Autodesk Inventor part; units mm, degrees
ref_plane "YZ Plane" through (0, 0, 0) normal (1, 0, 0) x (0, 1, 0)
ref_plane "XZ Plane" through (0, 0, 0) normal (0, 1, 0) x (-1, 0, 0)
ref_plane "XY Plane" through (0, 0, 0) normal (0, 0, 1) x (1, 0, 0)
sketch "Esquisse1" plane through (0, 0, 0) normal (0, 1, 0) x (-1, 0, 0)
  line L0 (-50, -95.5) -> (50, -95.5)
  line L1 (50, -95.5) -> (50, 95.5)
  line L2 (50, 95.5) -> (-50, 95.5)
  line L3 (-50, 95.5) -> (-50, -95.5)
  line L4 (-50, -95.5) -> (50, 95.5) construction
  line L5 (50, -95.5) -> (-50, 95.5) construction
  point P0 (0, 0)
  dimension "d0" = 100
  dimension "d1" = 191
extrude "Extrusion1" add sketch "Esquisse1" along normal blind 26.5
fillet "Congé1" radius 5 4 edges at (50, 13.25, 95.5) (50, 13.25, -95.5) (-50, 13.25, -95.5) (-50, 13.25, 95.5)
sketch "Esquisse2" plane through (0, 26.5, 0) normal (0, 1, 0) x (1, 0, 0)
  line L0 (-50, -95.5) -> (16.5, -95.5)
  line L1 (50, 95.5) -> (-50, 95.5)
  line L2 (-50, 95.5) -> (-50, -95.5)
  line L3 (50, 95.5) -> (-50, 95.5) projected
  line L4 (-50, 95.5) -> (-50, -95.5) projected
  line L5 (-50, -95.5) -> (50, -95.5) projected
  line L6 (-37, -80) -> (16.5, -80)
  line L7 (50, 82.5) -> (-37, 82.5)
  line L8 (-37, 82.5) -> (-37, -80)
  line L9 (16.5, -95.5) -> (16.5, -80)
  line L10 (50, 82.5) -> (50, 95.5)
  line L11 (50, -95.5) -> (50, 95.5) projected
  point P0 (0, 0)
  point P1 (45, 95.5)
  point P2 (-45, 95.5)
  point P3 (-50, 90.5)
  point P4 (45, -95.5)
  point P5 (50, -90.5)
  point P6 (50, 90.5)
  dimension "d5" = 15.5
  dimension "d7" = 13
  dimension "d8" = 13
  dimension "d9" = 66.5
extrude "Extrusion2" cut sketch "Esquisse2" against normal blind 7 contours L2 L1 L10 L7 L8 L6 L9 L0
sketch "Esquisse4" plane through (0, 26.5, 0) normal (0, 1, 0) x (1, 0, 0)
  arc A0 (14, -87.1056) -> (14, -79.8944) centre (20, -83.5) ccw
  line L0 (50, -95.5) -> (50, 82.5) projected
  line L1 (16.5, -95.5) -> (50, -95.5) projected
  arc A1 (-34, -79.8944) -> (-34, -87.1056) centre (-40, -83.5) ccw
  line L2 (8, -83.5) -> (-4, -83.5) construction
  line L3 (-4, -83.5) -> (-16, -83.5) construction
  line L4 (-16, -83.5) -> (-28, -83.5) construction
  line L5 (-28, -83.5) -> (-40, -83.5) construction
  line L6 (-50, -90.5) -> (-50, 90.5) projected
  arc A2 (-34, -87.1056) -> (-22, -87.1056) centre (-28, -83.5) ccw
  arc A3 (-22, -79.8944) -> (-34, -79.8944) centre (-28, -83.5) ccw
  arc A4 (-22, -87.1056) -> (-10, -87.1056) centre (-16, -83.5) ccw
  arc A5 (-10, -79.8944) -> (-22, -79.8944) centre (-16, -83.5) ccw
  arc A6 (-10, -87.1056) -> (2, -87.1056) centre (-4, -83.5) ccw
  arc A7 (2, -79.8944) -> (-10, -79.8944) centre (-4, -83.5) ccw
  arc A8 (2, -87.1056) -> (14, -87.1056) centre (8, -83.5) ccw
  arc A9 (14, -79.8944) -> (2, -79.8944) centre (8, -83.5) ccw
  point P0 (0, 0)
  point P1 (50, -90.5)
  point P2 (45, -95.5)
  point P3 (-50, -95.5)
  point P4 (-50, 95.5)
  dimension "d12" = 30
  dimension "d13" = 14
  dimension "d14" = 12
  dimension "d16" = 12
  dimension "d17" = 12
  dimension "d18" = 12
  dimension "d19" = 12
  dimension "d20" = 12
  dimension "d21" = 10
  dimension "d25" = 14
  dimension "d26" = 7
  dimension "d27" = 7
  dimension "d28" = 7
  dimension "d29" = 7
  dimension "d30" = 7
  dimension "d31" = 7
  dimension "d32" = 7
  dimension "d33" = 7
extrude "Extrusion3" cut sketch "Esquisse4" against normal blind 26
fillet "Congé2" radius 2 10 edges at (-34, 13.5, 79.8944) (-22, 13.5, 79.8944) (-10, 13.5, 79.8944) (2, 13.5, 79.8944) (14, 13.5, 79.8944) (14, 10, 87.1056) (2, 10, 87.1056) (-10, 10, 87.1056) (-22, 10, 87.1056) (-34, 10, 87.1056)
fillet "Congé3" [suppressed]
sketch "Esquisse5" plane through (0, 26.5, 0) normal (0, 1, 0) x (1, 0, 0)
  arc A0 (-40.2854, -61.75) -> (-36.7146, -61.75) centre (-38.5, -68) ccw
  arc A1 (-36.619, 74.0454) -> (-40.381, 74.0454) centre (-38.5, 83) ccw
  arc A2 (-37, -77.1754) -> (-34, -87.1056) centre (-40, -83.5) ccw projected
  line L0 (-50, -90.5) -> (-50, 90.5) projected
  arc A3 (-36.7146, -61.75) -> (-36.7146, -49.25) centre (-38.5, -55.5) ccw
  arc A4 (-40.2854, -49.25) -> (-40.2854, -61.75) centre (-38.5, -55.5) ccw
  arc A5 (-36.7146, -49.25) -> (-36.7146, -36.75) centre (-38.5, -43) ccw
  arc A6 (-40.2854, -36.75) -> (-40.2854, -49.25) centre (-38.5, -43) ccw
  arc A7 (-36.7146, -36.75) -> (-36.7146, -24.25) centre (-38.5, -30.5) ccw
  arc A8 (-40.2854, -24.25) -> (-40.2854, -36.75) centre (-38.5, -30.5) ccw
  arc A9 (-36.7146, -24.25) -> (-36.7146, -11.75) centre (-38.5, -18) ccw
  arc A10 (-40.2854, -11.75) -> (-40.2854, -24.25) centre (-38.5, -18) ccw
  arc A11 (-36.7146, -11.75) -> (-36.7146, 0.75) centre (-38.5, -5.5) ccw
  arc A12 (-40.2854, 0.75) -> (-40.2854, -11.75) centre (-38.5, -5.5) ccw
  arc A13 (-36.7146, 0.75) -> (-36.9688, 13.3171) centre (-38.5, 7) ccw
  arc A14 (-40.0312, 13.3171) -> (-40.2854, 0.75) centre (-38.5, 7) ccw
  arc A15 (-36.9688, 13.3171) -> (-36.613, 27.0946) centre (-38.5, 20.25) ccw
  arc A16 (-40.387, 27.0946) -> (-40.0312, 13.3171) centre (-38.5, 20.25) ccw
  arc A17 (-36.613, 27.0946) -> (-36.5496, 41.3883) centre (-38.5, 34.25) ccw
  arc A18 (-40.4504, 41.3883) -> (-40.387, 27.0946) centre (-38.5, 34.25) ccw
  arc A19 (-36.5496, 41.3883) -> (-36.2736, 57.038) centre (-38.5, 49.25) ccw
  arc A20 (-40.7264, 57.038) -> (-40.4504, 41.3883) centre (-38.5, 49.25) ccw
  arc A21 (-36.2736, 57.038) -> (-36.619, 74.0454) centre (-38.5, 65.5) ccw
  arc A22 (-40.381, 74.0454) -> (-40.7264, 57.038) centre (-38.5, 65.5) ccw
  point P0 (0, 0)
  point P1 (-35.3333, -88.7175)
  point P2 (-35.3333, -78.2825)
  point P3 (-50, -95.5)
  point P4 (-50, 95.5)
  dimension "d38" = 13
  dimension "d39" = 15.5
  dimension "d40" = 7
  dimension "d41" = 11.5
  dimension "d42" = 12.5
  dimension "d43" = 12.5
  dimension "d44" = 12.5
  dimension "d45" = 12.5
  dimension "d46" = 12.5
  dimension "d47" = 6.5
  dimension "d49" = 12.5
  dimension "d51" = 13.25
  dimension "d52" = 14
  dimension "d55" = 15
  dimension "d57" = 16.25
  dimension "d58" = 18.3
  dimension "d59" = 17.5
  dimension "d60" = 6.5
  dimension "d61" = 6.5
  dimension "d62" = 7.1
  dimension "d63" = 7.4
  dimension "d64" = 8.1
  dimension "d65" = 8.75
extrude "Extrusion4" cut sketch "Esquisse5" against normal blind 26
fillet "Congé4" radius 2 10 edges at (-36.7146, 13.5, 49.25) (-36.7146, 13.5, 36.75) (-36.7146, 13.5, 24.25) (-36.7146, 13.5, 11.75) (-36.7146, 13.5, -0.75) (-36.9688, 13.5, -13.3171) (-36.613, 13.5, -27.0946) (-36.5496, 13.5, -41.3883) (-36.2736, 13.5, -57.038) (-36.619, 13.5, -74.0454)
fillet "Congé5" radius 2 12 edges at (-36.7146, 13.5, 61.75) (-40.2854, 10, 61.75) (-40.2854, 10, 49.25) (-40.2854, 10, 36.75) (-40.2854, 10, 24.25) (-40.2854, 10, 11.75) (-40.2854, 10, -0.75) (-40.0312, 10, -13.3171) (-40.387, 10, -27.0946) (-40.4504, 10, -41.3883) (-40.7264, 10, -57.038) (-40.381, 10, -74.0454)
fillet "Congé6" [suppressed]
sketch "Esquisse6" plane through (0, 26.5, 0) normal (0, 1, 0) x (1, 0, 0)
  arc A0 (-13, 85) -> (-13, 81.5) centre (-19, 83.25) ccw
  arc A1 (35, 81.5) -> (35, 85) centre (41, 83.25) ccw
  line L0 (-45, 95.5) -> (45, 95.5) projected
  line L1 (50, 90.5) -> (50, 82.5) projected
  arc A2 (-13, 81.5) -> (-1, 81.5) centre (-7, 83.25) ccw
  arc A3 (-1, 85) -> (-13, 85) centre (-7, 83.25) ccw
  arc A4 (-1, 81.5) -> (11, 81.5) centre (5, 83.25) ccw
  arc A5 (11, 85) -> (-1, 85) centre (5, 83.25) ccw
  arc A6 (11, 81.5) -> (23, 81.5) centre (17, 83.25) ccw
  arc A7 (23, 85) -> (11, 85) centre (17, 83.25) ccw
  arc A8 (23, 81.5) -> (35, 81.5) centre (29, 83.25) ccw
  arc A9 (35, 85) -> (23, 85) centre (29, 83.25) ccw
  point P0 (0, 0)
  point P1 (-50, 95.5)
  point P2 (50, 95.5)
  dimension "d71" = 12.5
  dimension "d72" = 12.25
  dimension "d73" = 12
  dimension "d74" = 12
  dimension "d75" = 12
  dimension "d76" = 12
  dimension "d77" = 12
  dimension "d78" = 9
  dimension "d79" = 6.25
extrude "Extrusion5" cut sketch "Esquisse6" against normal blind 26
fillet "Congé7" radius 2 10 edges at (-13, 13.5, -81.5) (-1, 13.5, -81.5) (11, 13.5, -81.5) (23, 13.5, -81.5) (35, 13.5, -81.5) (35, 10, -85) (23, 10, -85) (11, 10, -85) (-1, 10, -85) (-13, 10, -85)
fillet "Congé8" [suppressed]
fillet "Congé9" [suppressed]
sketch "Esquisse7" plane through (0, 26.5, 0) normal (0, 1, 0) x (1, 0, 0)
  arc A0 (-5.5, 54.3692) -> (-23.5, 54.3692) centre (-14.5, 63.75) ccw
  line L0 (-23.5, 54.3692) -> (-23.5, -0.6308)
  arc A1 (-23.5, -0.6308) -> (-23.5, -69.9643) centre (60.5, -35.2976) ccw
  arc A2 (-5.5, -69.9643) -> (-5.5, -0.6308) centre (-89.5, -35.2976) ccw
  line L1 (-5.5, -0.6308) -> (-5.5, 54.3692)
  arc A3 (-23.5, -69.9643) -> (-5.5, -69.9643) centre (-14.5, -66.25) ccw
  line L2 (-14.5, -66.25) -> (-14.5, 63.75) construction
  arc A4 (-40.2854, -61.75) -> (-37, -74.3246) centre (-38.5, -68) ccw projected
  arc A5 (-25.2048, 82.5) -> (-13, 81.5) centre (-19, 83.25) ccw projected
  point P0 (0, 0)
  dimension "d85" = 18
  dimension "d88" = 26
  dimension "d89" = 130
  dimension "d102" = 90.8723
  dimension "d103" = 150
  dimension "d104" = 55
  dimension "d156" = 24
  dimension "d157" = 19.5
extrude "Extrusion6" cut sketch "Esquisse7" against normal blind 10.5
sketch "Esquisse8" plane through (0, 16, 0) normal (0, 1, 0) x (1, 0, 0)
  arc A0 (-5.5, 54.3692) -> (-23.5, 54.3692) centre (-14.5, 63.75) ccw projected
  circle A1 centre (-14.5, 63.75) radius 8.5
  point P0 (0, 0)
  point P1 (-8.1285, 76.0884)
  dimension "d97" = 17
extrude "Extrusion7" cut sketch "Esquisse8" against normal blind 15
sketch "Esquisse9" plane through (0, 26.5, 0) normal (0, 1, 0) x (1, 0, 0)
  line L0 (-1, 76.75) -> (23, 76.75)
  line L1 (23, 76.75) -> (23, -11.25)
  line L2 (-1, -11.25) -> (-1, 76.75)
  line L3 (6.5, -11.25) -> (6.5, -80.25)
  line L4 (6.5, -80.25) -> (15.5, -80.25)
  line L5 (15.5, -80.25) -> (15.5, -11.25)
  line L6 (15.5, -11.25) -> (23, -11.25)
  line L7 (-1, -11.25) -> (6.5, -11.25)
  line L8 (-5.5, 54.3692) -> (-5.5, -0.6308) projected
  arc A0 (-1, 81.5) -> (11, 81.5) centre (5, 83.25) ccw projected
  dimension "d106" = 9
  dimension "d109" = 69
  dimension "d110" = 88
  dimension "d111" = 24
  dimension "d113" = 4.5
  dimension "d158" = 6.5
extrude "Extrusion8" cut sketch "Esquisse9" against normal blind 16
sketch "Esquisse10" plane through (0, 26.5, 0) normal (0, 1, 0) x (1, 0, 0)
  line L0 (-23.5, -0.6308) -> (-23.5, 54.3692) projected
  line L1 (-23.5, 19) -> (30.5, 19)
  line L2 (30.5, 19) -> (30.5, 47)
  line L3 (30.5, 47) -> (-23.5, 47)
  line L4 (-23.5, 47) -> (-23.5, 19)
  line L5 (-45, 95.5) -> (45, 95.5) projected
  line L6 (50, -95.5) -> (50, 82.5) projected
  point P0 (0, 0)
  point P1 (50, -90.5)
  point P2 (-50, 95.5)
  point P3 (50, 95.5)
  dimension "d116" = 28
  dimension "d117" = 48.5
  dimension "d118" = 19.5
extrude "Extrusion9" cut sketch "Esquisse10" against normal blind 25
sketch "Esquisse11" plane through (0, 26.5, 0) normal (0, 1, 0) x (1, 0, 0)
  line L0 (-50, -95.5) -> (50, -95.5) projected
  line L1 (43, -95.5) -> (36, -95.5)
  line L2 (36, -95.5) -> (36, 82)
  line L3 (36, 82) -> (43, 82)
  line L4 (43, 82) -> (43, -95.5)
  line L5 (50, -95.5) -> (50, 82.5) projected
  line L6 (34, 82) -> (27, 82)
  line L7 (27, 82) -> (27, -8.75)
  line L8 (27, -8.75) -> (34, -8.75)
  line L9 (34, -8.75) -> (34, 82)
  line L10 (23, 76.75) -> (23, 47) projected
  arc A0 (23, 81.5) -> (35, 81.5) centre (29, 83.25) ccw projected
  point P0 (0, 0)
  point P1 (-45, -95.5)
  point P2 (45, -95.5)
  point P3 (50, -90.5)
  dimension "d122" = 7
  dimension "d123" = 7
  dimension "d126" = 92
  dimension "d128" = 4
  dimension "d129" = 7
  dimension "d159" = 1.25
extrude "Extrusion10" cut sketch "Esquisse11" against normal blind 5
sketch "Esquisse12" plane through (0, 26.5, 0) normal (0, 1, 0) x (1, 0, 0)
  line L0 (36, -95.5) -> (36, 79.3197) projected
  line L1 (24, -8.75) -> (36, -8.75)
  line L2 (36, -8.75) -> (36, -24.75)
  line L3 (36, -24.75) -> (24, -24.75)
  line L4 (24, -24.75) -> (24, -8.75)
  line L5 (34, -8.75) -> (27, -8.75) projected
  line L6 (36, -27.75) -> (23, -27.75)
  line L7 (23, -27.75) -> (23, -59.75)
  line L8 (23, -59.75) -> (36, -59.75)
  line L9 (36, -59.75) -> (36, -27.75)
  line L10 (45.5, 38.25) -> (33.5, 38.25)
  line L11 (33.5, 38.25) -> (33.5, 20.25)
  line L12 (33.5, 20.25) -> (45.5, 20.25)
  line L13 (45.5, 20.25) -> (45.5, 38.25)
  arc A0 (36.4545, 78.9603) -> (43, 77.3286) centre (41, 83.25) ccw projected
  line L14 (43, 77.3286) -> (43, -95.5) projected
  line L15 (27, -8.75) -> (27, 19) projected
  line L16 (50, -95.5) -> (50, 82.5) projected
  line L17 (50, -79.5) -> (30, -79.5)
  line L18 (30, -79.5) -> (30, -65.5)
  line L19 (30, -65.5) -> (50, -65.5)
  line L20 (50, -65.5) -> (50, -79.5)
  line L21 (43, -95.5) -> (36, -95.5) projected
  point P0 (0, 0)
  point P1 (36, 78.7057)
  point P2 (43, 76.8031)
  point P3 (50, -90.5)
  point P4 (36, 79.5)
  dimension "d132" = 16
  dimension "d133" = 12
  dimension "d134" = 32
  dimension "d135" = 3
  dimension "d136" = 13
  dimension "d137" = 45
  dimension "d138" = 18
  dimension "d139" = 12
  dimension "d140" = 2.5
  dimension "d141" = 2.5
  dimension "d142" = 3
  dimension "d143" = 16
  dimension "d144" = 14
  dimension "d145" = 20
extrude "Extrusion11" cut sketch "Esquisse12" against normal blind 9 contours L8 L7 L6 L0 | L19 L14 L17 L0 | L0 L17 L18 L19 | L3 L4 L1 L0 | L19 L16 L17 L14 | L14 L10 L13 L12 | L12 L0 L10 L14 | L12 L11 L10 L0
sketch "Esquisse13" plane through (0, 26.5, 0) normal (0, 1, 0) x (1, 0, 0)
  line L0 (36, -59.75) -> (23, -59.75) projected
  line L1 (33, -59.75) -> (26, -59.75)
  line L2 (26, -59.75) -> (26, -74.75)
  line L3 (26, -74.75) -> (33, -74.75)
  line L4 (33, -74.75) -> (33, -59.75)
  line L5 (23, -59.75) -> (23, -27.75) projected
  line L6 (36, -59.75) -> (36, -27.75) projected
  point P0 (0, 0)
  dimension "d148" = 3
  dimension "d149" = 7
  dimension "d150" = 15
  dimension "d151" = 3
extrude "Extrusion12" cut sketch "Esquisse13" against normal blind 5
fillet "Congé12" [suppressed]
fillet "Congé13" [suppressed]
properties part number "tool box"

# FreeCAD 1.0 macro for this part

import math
import FreeCAD as App
import Part
import Sketcher
from FreeCAD import Vector
Q = App.Units.Quantity


def edges_at(feature, points):
    """Names of the edges that pass closest to the given points."""
    edges = feature.Shape.Edges
    near = lambda p: min(range(len(edges)), key=lambda i: edges[i].distToShape(Part.Vertex(*p))[0])
    return sorted({f"Edge{near(p) + 1}" for p in points})

doc = App.newDocument("Part")
params = doc.addObject("Spreadsheet::Sheet", "Params")
for row, (alias, value) in enumerate([
    ("sketch1_width", "100 mm"),
    ("sketch1_height", "191 mm"),
    ("pad1_length", "26.5 mm"),
    ("fillet_radius", "5 mm"),
    ("sketch2_height", "13 mm"),
    ("sketch2_width", "66.5 mm"),
    ("sketch2_height2", "15.5 mm"),
    ("sketch2_width2", "87 mm"),
    ("sketch2_height3", "191 mm"),
    ("pocket1_length", "7 mm"),
    ("sketch3_radius", "7 mm"),
    ("pocket2_length", "26 mm"),
    ("fillet2_radius", "2 mm"),
    ("sketch4_radius", "6.5 mm"),
    ("sketch4_radius2", "7.1 mm"),
    ("sketch4_radius3", "7.4 mm"),
    ("sketch4_radius4", "8.1 mm"),
    ("sketch4_radius5", "8.75 mm"),
    ("pocket3_length", "26 mm"),
    ("fillet3_radius", "2 mm"),
    ("fillet4_radius", "2 mm"),
    ("sketch5_radius", "6.25 mm"),
    ("pocket4_length", "26 mm"),
    ("fillet5_radius", "2 mm"),
    ("sketch6_radius", "13 mm"),
    ("sketch6_height", "55 mm"),
    ("pocket5_length", "10.5 mm"),
    ("sketch7_diameter", "17 mm"),
    ("pocket6_length", "15 mm"),
    ("sketch8_width", "24 mm"),
    ("sketch8_width2", "9 mm"),
    ("sketch8_height", "88 mm"),
    ("sketch8_height2", "69 mm"),
    ("pocket7_length", "16 mm"),
    ("sketch9_height", "28 mm"),
    ("sketch9_width", "54 mm"),
    ("pocket8_length", "25 mm"),
    ("sketch10_width", "7 mm"),
    ("sketch10_height", "177.5 mm"),
    ("sketch10_height2", "90.75 mm"),
    ("pocket9_length", "5 mm"),
    ("sketch11_width", "13 mm"),
    ("sketch11_width2", "20 mm"),
    ("sketch11_width3", "12 mm"),
    ("sketch11_height", "32 mm"),
    ("sketch11_height2", "14 mm"),
    ("pocket10_length", "9 mm"),
    ("sketch12_width", "7 mm"),
    ("sketch12_height", "15 mm"),
    ("pocket11_length", "5 mm"),
], start=1):
    params.set(f"A{row}", alias)
    params.set(f"B{row}", "=" + value)
    params.setAlias(f"B{row}", alias)

body = doc.addObject("PartDesign::Body", "Body")

sketch1 = doc.addObject("Sketcher::SketchObject", "Sketch")
body.addObject(sketch1)
sketch1.AttachmentSupport = (doc.XZ_Plane, [""])
sketch1.MapMode = "FlatFace"
sketch1.addGeometry([
    Part.LineSegment(Vector(50, 96, 0), Vector(50, -96, 0)),
    Part.LineSegment(Vector(50, -96, 0), Vector(-50, -96, 0)),
    Part.LineSegment(Vector(-50, -96, 0), Vector(-50, 96, 0)),
    Part.LineSegment(Vector(-50, 96, 0), Vector(50, 96, 0)),
], False)
sketch1.addConstraint([
    Sketcher.Constraint("Coincident", 0, 2, 1, 1),
    Sketcher.Constraint("Coincident", 1, 2, 2, 1),
    Sketcher.Constraint("Coincident", 2, 2, 3, 1),
    Sketcher.Constraint("Coincident", 3, 2, 0, 1),
    Sketcher.Constraint("Vertical", 0),
    Sketcher.Constraint("Horizontal", 1),
    Sketcher.Constraint("Vertical", 2),
    Sketcher.Constraint("Horizontal", 3),
    Sketcher.Constraint("Symmetric", 0, 2, 2, 2, -1, 1),
    Sketcher.Constraint("DistanceX", 1, 2, 1, 1, Q("100 mm")),
    Sketcher.Constraint("DistanceY", 0, 2, 0, 1, Q("191 mm")),
])
sketch1.setExpression("Constraints[9]", "Params.sketch1_width")
sketch1.setExpression("Constraints[10]", "Params.sketch1_height")
pad1 = doc.addObject("PartDesign::Pad", "Pad")
body.addObject(pad1)
pad1.Profile = sketch1
pad1.setExpression("Length", "Params.pad1_length")
pad1.Reversed = True
doc.recompute()

fillet = doc.addObject("PartDesign::Fillet", "Fillet")
body.addObject(fillet)
fillet.Base = (pad1, edges_at(pad1, [
    (50, 13.25, 95.5),
    (50, 13.25, -95.5),
    (-50, 13.25, -95.5),
    (-50, 13.25, 95.5),
]))
fillet.setExpression("Radius", "Params.fillet_radius")

sketch2 = doc.addObject("Sketcher::SketchObject", "Sketch001")
body.addObject(sketch2)
sketch2.AttachmentSupport = (doc.XZ_Plane, [""])
sketch2.MapMode = "FlatFace"
sketch2.AttachmentOffset = App.Placement(Vector(0, 0, -26.5), App.Rotation())
sketch2.addGeometry([
    Part.LineSegment(Vector(-50, -96, 0), Vector(-50, 96, 0)),
    Part.LineSegment(Vector(-50, 96, 0), Vector(16, 96, 0)),
    Part.LineSegment(Vector(16, 96, 0), Vector(16, 80, 0)),
    Part.LineSegment(Vector(16, 80, 0), Vector(-37, 80, 0)),
    Part.LineSegment(Vector(-37, 80, 0), Vector(-37, -82, 0)),
    Part.LineSegment(Vector(-37, -82, 0), Vector(50, -82, 0)),
    Part.LineSegment(Vector(50, -82, 0), Vector(50, -96, 0)),
    Part.LineSegment(Vector(50, -96, 0), Vector(-50, -96, 0)),
], False)
sketch2.addConstraint([
    Sketcher.Constraint("Coincident", 0, 2, 1, 1),
    Sketcher.Constraint("Coincident", 1, 2, 2, 1),
    Sketcher.Constraint("Coincident", 2, 2, 3, 1),
    Sketcher.Constraint("Coincident", 3, 2, 4, 1),
    Sketcher.Constraint("Coincident", 4, 2, 5, 1),
    Sketcher.Constraint("Coincident", 5, 2, 6, 1),
    Sketcher.Constraint("Coincident", 6, 2, 7, 1),
    Sketcher.Constraint("Coincident", 7, 2, 0, 1),
    Sketcher.Constraint("Vertical", 0),
    Sketcher.Constraint("Horizontal", 1),
    Sketcher.Constraint("Vertical", 2),
    Sketcher.Constraint("Horizontal", 3),
    Sketcher.Constraint("Vertical", 4),
    Sketcher.Constraint("Horizontal", 5),
    Sketcher.Constraint("Vertical", 6),
    Sketcher.Constraint("Horizontal", 7),
    Sketcher.Constraint("Symmetric", 0, 2, 6, 2, -1, 1),
    Sketcher.Constraint("DistanceY", 6, 2, 6, 1, Q("13 mm")),
    Sketcher.Constraint("DistanceX", 1, 1, 1, 2, Q("66.5 mm")),
    Sketcher.Constraint("DistanceY", 2, 2, 2, 1, Q("15.5 mm")),
    Sketcher.Constraint("DistanceX", 0, 2, 3, 2, Q("13 mm")),
    Sketcher.Constraint("DistanceX", 5, 1, 5, 2, Q("87 mm")),
    Sketcher.Constraint("DistanceY", 0, 1, 0, 2, Q("191 mm")),
])
sketch2.setExpression("Constraints[17]", "Params.sketch2_height")
sketch2.setExpression("Constraints[18]", "Params.sketch2_width")
sketch2.setExpression("Constraints[19]", "Params.sketch2_height2")
sketch2.setExpression("Constraints[21]", "Params.sketch2_width2")
sketch2.setExpression("Constraints[22]", "Params.sketch2_height3")
pocket1 = doc.addObject("PartDesign::Pocket", "Pocket")
body.addObject(pocket1)
pocket1.Profile = sketch2
pocket1.setExpression("Length", "Params.pocket1_length")
pocket1.Reversed = True

sketch3 = doc.addObject("Sketcher::SketchObject", "Sketch002")
body.addObject(sketch3)
sketch3.AttachmentSupport = (doc.XZ_Plane, [""])
sketch3.MapMode = "FlatFace"
sketch3.AttachmentOffset = App.Placement(Vector(0, 0, -26.5), App.Rotation())
sketch3.addGeometry([
    Part.ArcOfCircle(Part.Circle(Vector(8, 84, 0), Vector(0, 0, 1), 7), math.radians(31), math.radians(149)),
    Part.ArcOfCircle(Part.Circle(Vector(20, 84, 0), Vector(0, 0, 1), 7), math.radians(-149), math.radians(149)),
    Part.ArcOfCircle(Part.Circle(Vector(8, 84, 0), Vector(0, 0, 1), 7), math.radians(-149), math.radians(-31)),
    Part.ArcOfCircle(Part.Circle(Vector(-4, 84, 0), Vector(0, 0, 1), 7), math.radians(-149), math.radians(-31)),
    Part.ArcOfCircle(Part.Circle(Vector(-16, 84, 0), Vector(0, 0, 1), 7), math.radians(-149), math.radians(-31)),
    Part.ArcOfCircle(Part.Circle(Vector(-28, 84, 0), Vector(0, 0, 1), 7), math.radians(-149), math.radians(-31)),
    Part.ArcOfCircle(Part.Circle(Vector(-40, 84, 0), Vector(0, 0, 1), 7), math.radians(31), math.radians(329)),
    Part.ArcOfCircle(Part.Circle(Vector(-28, 84, 0), Vector(0, 0, 1), 7), math.radians(31), math.radians(149)),
    Part.ArcOfCircle(Part.Circle(Vector(-16, 84, 0), Vector(0, 0, 1), 7), math.radians(31), math.radians(149)),
    Part.ArcOfCircle(Part.Circle(Vector(-4, 84, 0), Vector(0, 0, 1), 7), math.radians(31), math.radians(149)),
], False)
sketch3.addConstraint([
    Sketcher.Constraint("Coincident", 0, 1, 1, 2),
    Sketcher.Constraint("Coincident", 1, 1, 2, 2),
    Sketcher.Constraint("Coincident", 2, 1, 3, 2),
    Sketcher.Constraint("Coincident", 3, 1, 4, 2),
    Sketcher.Constraint("Coincident", 4, 1, 5, 2),
    Sketcher.Constraint("Coincident", 5, 1, 6, 2),
    Sketcher.Constraint("Coincident", 6, 1, 7, 2),
    Sketcher.Constraint("Coincident", 7, 1, 8, 2),
    Sketcher.Constraint("Coincident", 8, 1, 9, 2),
    Sketcher.Constraint("Coincident", 9, 1, 0, 2),
    Sketcher.Constraint("Coincident", 2, 3, 0, 3),
    Sketcher.Constraint("Coincident", 7, 3, 5, 3),
    Sketcher.Constraint("Coincident", 8, 3, 4, 3),
    Sketcher.Constraint("Coincident", 9, 3, 3, 3),
    Sketcher.Constraint("Equal", 0, 1),
    Sketcher.Constraint("Equal", 1, 2),
    Sketcher.Constraint("Equal", 2, 3),
    Sketcher.Constraint("Equal", 3, 4),
    Sketcher.Constraint("Equal", 4, 5),
    Sketcher.Constraint("Equal", 5, 6),
    Sketcher.Constraint("Equal", 6, 7),
    Sketcher.Constraint("Equal", 7, 8),
    Sketcher.Constraint("Equal", 8, 9),
    Sketcher.Constraint("Horizontal", 0, 3, 1, 3),
    Sketcher.Constraint("Horizontal", 2, 3, 3, 3),
    Sketcher.Constraint("Horizontal", 3, 3, 4, 3),
    Sketcher.Constraint("Horizontal", 4, 3, 5, 3),
    Sketcher.Constraint("Horizontal", 5, 3, 6, 3),
    Sketcher.Constraint("Horizontal", 1, 1, 2, 1),
    Sketcher.Constraint("Horizontal", 2, 1, 3, 1),
    Sketcher.Constraint("Horizontal", 3, 1, 4, 1),
    Sketcher.Constraint("Horizontal", 4, 1, 5, 1),
    Sketcher.Constraint("Radius", 0, Q("7 mm")),
    Sketcher.Constraint("DistanceX", -1, 1, 0, 1, Q("14 mm")),
    Sketcher.Constraint("DistanceX", 3, 1, -1, 1, Q("10 mm")),
    Sketcher.Constraint("DistanceY", -1, 1, 0, 3, Q("83.5 mm")),
])
sketch3.setExpression("Constraints[32]", "Params.sketch3_radius")
pocket2 = doc.addObject("PartDesign::Pocket", "Pocket001")
body.addObject(pocket2)
pocket2.Profile = sketch3
pocket2.setExpression("Length", "Params.pocket2_length")
pocket2.Reversed = True
doc.recompute()

fillet2 = doc.addObject("PartDesign::Fillet", "Fillet001")
body.addObject(fillet2)
fillet2.Base = (pocket2, edges_at(pocket2, [
    (-34, 13.5, 79.894),
    (-22, 13.5, 79.894),
    (-10, 13.5, 79.894),
    (2, 13.5, 79.894),
    (14, 13.5, 79.894),
    (14, 10, 87.106),
    (2, 10, 87.106),
    (-10, 10, 87.106),
    (-22, 10, 87.106),
    (-34, 10, 87.106),
]))
fillet2.setExpression("Radius", "Params.fillet2_radius")

sketch4 = doc.addObject("Sketcher::SketchObject", "Sketch003")
body.addObject(sketch4)
sketch4.AttachmentSupport = (doc.XZ_Plane, [""])
sketch4.MapMode = "FlatFace"
sketch4.AttachmentOffset = App.Placement(Vector(0, 0, -26.5), App.Rotation())
sketch4.addGeometry([
    Part.ArcOfCircle(Part.Circle(Vector(-38.5, 55.5, 0), Vector(0, 0, 1), 6.5), math.radians(106), math.radians(254)),
    Part.ArcOfCircle(Part.Circle(Vector(-38.5, 68, 0), Vector(0, 0, 1), 6.5), math.radians(-74), math.radians(254)),
    Part.ArcOfCircle(Part.Circle(Vector(-38.5, 55.5, 0), Vector(0, 0, 1), 6.5), math.radians(-74), math.radians(74)),
    Part.ArcOfCircle(Part.Circle(Vector(-38.5, 43, 0), Vector(0, 0, 1), 6.5), math.radians(-74), math.radians(74)),
    Part.ArcOfCircle(Part.Circle(Vector(-38.5, 30.5, 0), Vector(0, 0, 1), 6.5), math.radians(-74), math.radians(74)),
    Part.ArcOfCircle(Part.Circle(Vector(-38.5, 18, 0), Vector(0, 0, 1), 6.5), math.radians(-74), math.radians(74)),
    Part.ArcOfCircle(Part.Circle(Vector(-38.5, 5.5, 0), Vector(0, 0, 1), 6.5), math.radians(-74), math.radians(74)),
    Part.ArcOfCircle(Part.Circle(Vector(-38.5, -7, 0), Vector(0, 0, 1), 6.5), math.radians(-76), math.radians(74)),
    Part.ArcOfCircle(Part.Circle(Vector(-38.5, -20.2, 0), Vector(0, 0, 1), 7.1), math.radians(-75), math.radians(78)),
    Part.ArcOfCircle(Part.Circle(Vector(-38.5, -34.2, 0), Vector(0, 0, 1), 7.4), math.radians(-75), math.radians(75)),
    Part.ArcOfCircle(Part.Circle(Vector(-38.5, -49.2, 0), Vector(0, 0, 1), 8.1), math.radians(-74), math.radians(76)),
    Part.ArcOfCircle(Part.Circle(Vector(-38.5, -65.5, 0), Vector(0, 0, 1), 8.7), math.radians(-78), math.radians(75)),
    Part.ArcOfCircle(Part.Circle(Vector(-38.5, -83, 0), Vector(0, 0, 1), 9.2), math.radians(102), math.radians(438)),
    Part.ArcOfCircle(Part.Circle(Vector(-38.5, -65.5, 0), Vector(0, 0, 1), 8.7), math.radians(105), math.radians(258)),
    Part.ArcOfCircle(Part.Circle(Vector(-38.5, -49.2, 0), Vector(0, 0, 1), 8.1), math.radians(104), math.radians(254)),
    Part.ArcOfCircle(Part.Circle(Vector(-38.5, -34.2, 0), Vector(0, 0, 1), 7.4), math.radians(105), math.radians(255)),
    Part.ArcOfCircle(Part.Circle(Vector(-38.5, -20.2, 0), Vector(0, 0, 1), 7.1), math.radians(102), math.radians(255)),
    Part.ArcOfCircle(Part.Circle(Vector(-38.5, -7, 0), Vector(0, 0, 1), 6.5), math.radians(106), math.radians(256)),
    Part.ArcOfCircle(Part.Circle(Vector(-38.5, 5.5, 0), Vector(0, 0, 1), 6.5), math.radians(106), math.radians(254)),
    Part.ArcOfCircle(Part.Circle(Vector(-38.5, 18, 0), Vector(0, 0, 1), 6.5), math.radians(106), math.radians(254)),
    Part.ArcOfCircle(Part.Circle(Vector(-38.5, 30.5, 0), Vector(0, 0, 1), 6.5), math.radians(106), math.radians(254)),
    Part.ArcOfCircle(Part.Circle(Vector(-38.5, 43, 0), Vector(0, 0, 1), 6.5), math.radians(106), math.radians(254)),
], False)
sketch4.addConstraint([
    Sketcher.Constraint("Coincident", 0, 1, 1, 2),
    Sketcher.Constraint("Coincident", 1, 1, 2, 2),
    Sketcher.Constraint("Coincident", 2, 1, 3, 2),
    Sketcher.Constraint("Coincident", 3, 1, 4, 2),
    Sketcher.Constraint("Coincident", 4, 1, 5, 2),
    Sketcher.Constraint("Coincident", 5, 1, 6, 2),
    Sketcher.Constraint("Coincident", 6, 1, 7, 2),
    Sketcher.Constraint("Coincident", 7, 1, 8, 2),
    Sketcher.Constraint("Coincident", 8, 1, 9, 2),
    Sketcher.Constraint("Coincident", 9, 1, 10, 2),
    Sketcher.Constraint("Coincident", 10, 1, 11, 2),
    Sketcher.Constraint("Coincident", 11, 1, 12, 2),
    Sketcher.Constraint("Coincident", 12, 1, 13, 2),
    Sketcher.Constraint("Coincident", 13, 1, 14, 2),
    Sketcher.Constraint("Coincident", 14, 1, 15, 2),
    Sketcher.Constraint("Coincident", 15, 1, 16, 2),
    Sketcher.Constraint("Coincident", 16, 1, 17, 2),
    Sketcher.Constraint("Coincident", 17, 1, 18, 2),
    Sketcher.Constraint("Coincident", 18, 1, 19, 2),
    Sketcher.Constraint("Coincident", 19, 1, 20, 2),
    Sketcher.Constraint("Coincident", 20, 1, 21, 2),
    Sketcher.Constraint("Coincident", 21, 1, 0, 2),
    Sketcher.Constraint("Coincident", 2, 3, 0, 3),
    Sketcher.Constraint("Coincident", 13, 3, 11, 3),
    Sketcher.Constraint("Coincident", 14, 3, 10, 3),
    Sketcher.Constraint("Coincident", 15, 3, 9, 3),
    Sketcher.Constraint("Coincident", 16, 3, 8, 3),
    Sketcher.Constraint("Coincident", 17, 3, 7, 3),
    Sketcher.Constraint("Coincident", 18, 3, 6, 3),
    Sketcher.Constraint("Coincident", 19, 3, 5, 3),
    Sketcher.Constraint("Coincident", 20, 3, 4, 3),
    Sketcher.Constraint("Coincident", 21, 3, 3, 3),
    Sketcher.Constraint("Equal", 0, 1),
    Sketcher.Constraint("Equal", 1, 2),
    Sketcher.Constraint("Equal", 2, 3),
    Sketcher.Constraint("Equal", 3, 4),
    Sketcher.Constraint("Equal", 4, 5),
    Sketcher.Constraint("Equal", 5, 6),
    Sketcher.Constraint("Equal", 6, 7),
    Sketcher.Constraint("Equal", 11, 13),
    Sketcher.Constraint("Equal", 10, 14),
    Sketcher.Constraint("Equal", 9, 15),
    Sketcher.Constraint("Equal", 8, 16),
    Sketcher.Constraint("Equal", 7, 17),
    Sketcher.Constraint("Equal", 17, 18),
    Sketcher.Constraint("Equal", 18, 19),
    Sketcher.Constraint("Equal", 19, 20),
    Sketcher.Constraint("Equal", 20, 21),
    Sketcher.Constraint("Horizontal", 0, 1, 1, 1),
    Sketcher.Constraint("Horizontal", 11, 1, 12, 1),
    Sketcher.Constraint("Horizontal", 10, 1, 13, 1),
    Sketcher.Constraint("Horizontal", 9, 1, 14, 1),
    Sketcher.Constraint("Horizontal", 8, 1, 15, 1),
    Sketcher.Constraint("Horizontal", 7, 1, 16, 1),
    Sketcher.Constraint("Horizontal", 6, 1, 17, 1),
    Sketcher.Constraint("Horizontal", 5, 1, 18, 1),
    Sketcher.Constraint("Horizontal", 4, 1, 19, 1),
    Sketcher.Constraint("Horizontal", 3, 1, 20, 1),
    Sketcher.Constraint("Horizontal", 2, 1, 21, 1),
    Sketcher.Constraint("Vertical", 1, 1, 2, 1),
    Sketcher.Constraint("Vertical", 2, 1, 3, 1),
    Sketcher.Constraint("Vertical", 3, 1, 4, 1),
    Sketcher.Constraint("Vertical", 4, 1, 5, 1),
    Sketcher.Constraint("Vertical", 5, 1, 6, 1),
    Sketcher.Constraint("Radius", 0, Q("6.5 mm")),
    Sketcher.Constraint("Radius", 8, Q("7.1 mm")),
    Sketcher.Constraint("Radius", 9, Q("7.4 mm")),
    Sketcher.Constraint("Radius", 10, Q("8.1 mm")),
    Sketcher.Constraint("Radius", 11, Q("8.75 mm")),
    Sketcher.Constraint("Radius", 12, Q("9.15 mm")),
    Sketcher.Constraint("DistanceY", 7, 3, -1, 1, Q("7 mm")),
    Sketcher.Constraint("DistanceY", 9, 3, 8, 3, Q("14 mm")),
    Sketcher.Constraint("DistanceY", 10, 3, 9, 3, Q("15 mm")),
    Sketcher.Constraint("DistanceY", 0, 3, 1, 3, Q("12.5 mm")),
    Sketcher.Constraint("DistanceY", 12, 3, 11, 3, Q("17.5 mm")),
    Sketcher.Constraint("DistanceY", 8, 3, 7, 3, Q("13.25 mm")),
    Sketcher.Constraint("DistanceY", 11, 3, 10, 3, Q("16.25 mm")),
    Sketcher.Constraint("DistanceX", 0, 3, -1, 1, Q("38.5 mm")),
])
sketch4.setExpression("Constraints[64]", "Params.sketch4_radius")
sketch4.setExpression("Constraints[65]", "Params.sketch4_radius2")
sketch4.setExpression("Constraints[66]", "Params.sketch4_radius3")
sketch4.setExpression("Constraints[67]", "Params.sketch4_radius4")
sketch4.setExpression("Constraints[68]", "Params.sketch4_radius5")
pocket3 = doc.addObject("PartDesign::Pocket", "Pocket002")
body.addObject(pocket3)
pocket3.Profile = sketch4
pocket3.setExpression("Length", "Params.pocket3_length")
pocket3.Reversed = True
doc.recompute()

fillet3 = doc.addObject("PartDesign::Fillet", "Fillet002")
body.addObject(fillet3)
fillet3.Base = (pocket3, edges_at(pocket3, [
    (-36.715, 13.5, 49.25),
    (-36.715, 13.5, 36.75),
    (-36.715, 13.5, 24.25),
    (-36.715, 13.5, 11.75),
    (-36.715, 13.5, -0.75),
    (-36.969, 13.5, -13.317),
    (-36.613, 13.5, -27.095),
    (-36.55, 13.5, -41.388),
    (-36.274, 13.5, -57.038),
    (-36.619, 13.5, -74.045),
]))
fillet3.setExpression("Radius", "Params.fillet3_radius")
doc.recompute()

fillet4 = doc.addObject("PartDesign::Fillet", "Fillet003")
body.addObject(fillet4)
fillet4.Base = (fillet3, edges_at(fillet3, [
    (-36.715, 13.5, 61.75),
    (-40.285, 10, 61.75),
    (-40.285, 10, 49.25),
    (-40.285, 10, 36.75),
    (-40.285, 10, 24.25),
    (-40.285, 10, 11.75),
    (-40.285, 10, -0.75),
    (-40.031, 10, -13.317),
    (-40.387, 10, -27.095),
    (-40.45, 10, -41.388),
    (-40.726, 10, -57.038),
    (-40.381, 10, -74.045),
]))
fillet4.setExpression("Radius", "Params.fillet4_radius")

sketch5 = doc.addObject("Sketcher::SketchObject", "Sketch004")
body.addObject(sketch5)
sketch5.AttachmentSupport = (doc.XZ_Plane, [""])
sketch5.MapMode = "FlatFace"
sketch5.AttachmentOffset = App.Placement(Vector(0, 0, -26.5), App.Rotation())
sketch5.addGeometry([
    Part.ArcOfCircle(Part.Circle(Vector(-7, -83.2, 0), Vector(0, 0, 1), 6.2), math.radians(-164), math.radians(-16)),
    Part.ArcOfCircle(Part.Circle(Vector(-19, -83.2, 0), Vector(0, 0, 1), 6.2), math.radians(16), math.radians(344)),
    Part.ArcOfCircle(Part.Circle(Vector(-7, -83.2, 0), Vector(0, 0, 1), 6.2), math.radians(16), math.radians(164)),
    Part.ArcOfCircle(Part.Circle(Vector(5, -83.2, 0), Vector(0, 0, 1), 6.2), math.radians(16), math.radians(164)),
    Part.ArcOfCircle(Part.Circle(Vector(17, -83.2, 0), Vector(0, 0, 1), 6.2), math.radians(16), math.radians(164)),
    Part.ArcOfCircle(Part.Circle(Vector(29, -83.2, 0), Vector(0, 0, 1), 6.2), math.radians(16), math.radians(164)),
    Part.ArcOfCircle(Part.Circle(Vector(41, -83.2, 0), Vector(0, 0, 1), 6.2), math.radians(-164), math.radians(164)),
    Part.ArcOfCircle(Part.Circle(Vector(29, -83.2, 0), Vector(0, 0, 1), 6.2), math.radians(-164), math.radians(-16)),
    Part.ArcOfCircle(Part.Circle(Vector(17, -83.2, 0), Vector(0, 0, 1), 6.2), math.radians(-164), math.radians(-16)),
    Part.ArcOfCircle(Part.Circle(Vector(5, -83.2, 0), Vector(0, 0, 1), 6.2), math.radians(-164), math.radians(-16)),
], False)
sketch5.addConstraint([
    Sketcher.Constraint("Coincident", 0, 1, 1, 2),
    Sketcher.Constraint("Coincident", 1, 1, 2, 2),
    Sketcher.Constraint("Coincident", 2, 1, 3, 2),
    Sketcher.Constraint("Coincident", 3, 1, 4, 2),
    Sketcher.Constraint("Coincident", 4, 1, 5, 2),
    Sketcher.Constraint("Coincident", 5, 1, 6, 2),
    Sketcher.Constraint("Coincident", 6, 1, 7, 2),
    Sketcher.Constraint("Coincident", 7, 1, 8, 2),
    Sketcher.Constraint("Coincident", 8, 1, 9, 2),
    Sketcher.Constraint("Coincident", 9, 1, 0, 2),
    Sketcher.Constraint("Coincident", 2, 3, 0, 3),
    Sketcher.Constraint("Coincident", 7, 3, 5, 3),
    Sketcher.Constraint("Coincident", 8, 3, 4, 3),
    Sketcher.Constraint("Coincident", 9, 3, 3, 3),
    Sketcher.Constraint("Equal", 0, 1),
    Sketcher.Constraint("Equal", 1, 2),
    Sketcher.Constraint("Equal", 2, 3),
    Sketcher.Constraint("Equal", 3, 4),
    Sketcher.Constraint("Equal", 4, 5),
    Sketcher.Constraint("Equal", 5, 6),
    Sketcher.Constraint("Equal", 6, 7),
    Sketcher.Constraint("Equal", 7, 8),
    Sketcher.Constraint("Equal", 8, 9),
    Sketcher.Constraint("Horizontal", 0, 3, 1, 3),
    Sketcher.Constraint("Horizontal", 2, 3, 3, 3),
    Sketcher.Constraint("Horizontal", 3, 3, 4, 3),
    Sketcher.Constraint("Horizontal", 4, 3, 5, 3),
    Sketcher.Constraint("Horizontal", 5, 3, 6, 3),
    Sketcher.Constraint("Horizontal", 1, 1, 2, 1),
    Sketcher.Constraint("Horizontal", 2, 1, 3, 1),
    Sketcher.Constraint("Horizontal", 3, 1, 4, 1),
    Sketcher.Constraint("Horizontal", 4, 1, 5, 1),
    Sketcher.Constraint("Radius", 0, Q("6.25 mm")),
    Sketcher.Constraint("DistanceX", 1, 3, 0, 3, Q("12 mm")),
    Sketcher.Constraint("DistanceX", 0, 3, -1, 1, Q("7 mm")),
    Sketcher.Constraint("DistanceY", 0, 1, -1, 1, Q("85 mm")),
])
sketch5.setExpression("Constraints[32]", "Params.sketch5_radius")
pocket4 = doc.addObject("PartDesign::Pocket", "Pocket003")
body.addObject(pocket4)
pocket4.Profile = sketch5
pocket4.setExpression("Length", "Params.pocket4_length")
pocket4.Reversed = True
doc.recompute()

fillet5 = doc.addObject("PartDesign::Fillet", "Fillet004")
body.addObject(fillet5)
fillet5.Base = (pocket4, edges_at(pocket4, [
    (-13, 13.5, -81.5),
    (-1, 13.5, -81.5),
    (11, 13.5, -81.5),
    (23, 13.5, -81.5),
    (35, 13.5, -81.5),
    (35, 10, -85),
    (23, 10, -85),
    (11, 10, -85),
    (-1, 10, -85),
    (-13, 10, -85),
]))
fillet5.setExpression("Radius", "Params.fillet5_radius")

sketch6 = doc.addObject("Sketcher::SketchObject", "Sketch005")
body.addObject(sketch6)
sketch6.AttachmentSupport = (doc.XZ_Plane, [""])
sketch6.MapMode = "FlatFace"
sketch6.AttachmentOffset = App.Placement(Vector(0, 0, -26.5), App.Rotation())
sketch6.addGeometry([
    Part.LineSegment(Vector(-6, 1, 0), Vector(-6, -54, 0)),
    Part.ArcOfCircle(Part.Circle(Vector(-14, -64, 0), Vector(0, 0, 1), 13), math.radians(134), math.radians(406)),
    Part.LineSegment(Vector(-24, -54, 0), Vector(-24, 1, 0)),
    Part.ArcOfCircle(Part.Circle(Vector(60, 35, 0), Vector(0, 0, 1), 91), math.radians(158), math.radians(202)),
    Part.ArcOfCircle(Part.Circle(Vector(-14, 66, 0), Vector(0, 0, 1), 10), math.radians(22), math.radians(158)),
    Part.ArcOfCircle(Part.Circle(Vector(-90, 35, 0), Vector(0, 0, 1), 91), math.radians(-22), math.radians(22)),
], False)
sketch6.addConstraint([
    Sketcher.Constraint("Coincident", 0, 2, 1, 2),
    Sketcher.Constraint("Coincident", 1, 1, 2, 1),
    Sketcher.Constraint("Coincident", 2, 2, 3, 2),
    Sketcher.Constraint("Tangent", 3, 1, 4, 2),
    Sketcher.Constraint("Tangent", 4, 1, 5, 2),
    Sketcher.Constraint("Coincident", 5, 1, 0, 1),
    Sketcher.Constraint("Vertical", 0),
    Sketcher.Constraint("Vertical", 2),
    Sketcher.Constraint("Equal", 3, 5),
    Sketcher.Constraint("Horizontal", 3, 3, 5, 3),
    Sketcher.Constraint("Horizontal", 0, 2, 1, 1),
    Sketcher.Constraint("Horizontal", 2, 2, 5, 1),
    Sketcher.Constraint("Vertical", 2, 2, 3, 1),
    Sketcher.Constraint("Radius", 1, Q("13 mm")),
    Sketcher.Constraint("DistanceY", 0, 2, 0, 1, Q("55 mm")),
    Sketcher.Constraint("DistanceY", 1, 3, 4, 3, Q("130 mm")),
    Sketcher.Constraint("DistanceX", 5, 3, 3, 3, Q("150 mm")),
    Sketcher.Constraint("DistanceX", 1, 1, 0, 2, Q("18 mm")),
    Sketcher.Constraint("DistanceX", 1, 3, -1, 1, Q("14.5 mm")),
    Sketcher.Constraint("DistanceY", 1, 3, -1, 1, Q("63.75 mm")),
])
sketch6.setExpression("Constraints[13]", "Params.sketch6_radius")
sketch6.setExpression("Constraints[14]", "Params.sketch6_height")
pocket5 = doc.addObject("PartDesign::Pocket", "Pocket004")
body.addObject(pocket5)
pocket5.Profile = sketch6
pocket5.setExpression("Length", "Params.pocket5_length")
pocket5.Reversed = True

sketch7 = doc.addObject("Sketcher::SketchObject", "Sketch006")
body.addObject(sketch7)
sketch7.AttachmentSupport = (doc.XZ_Plane, [""])
sketch7.MapMode = "FlatFace"
sketch7.AttachmentOffset = App.Placement(Vector(0, 0, -16), App.Rotation())
sketch7.addGeometry(Part.Circle(Vector(-14, -64, 0), Vector(0, 0, 1), 8), False)
sketch7.addConstraint([
    Sketcher.Constraint("Diameter", 0, Q("17 mm")),
    Sketcher.Constraint("DistanceX", 0, 3, -1, 1, Q("14.5 mm")),
    Sketcher.Constraint("DistanceY", 0, 3, -1, 1, Q("63.75 mm")),
])
sketch7.setExpression("Constraints[0]", "Params.sketch7_diameter")
pocket6 = doc.addObject("PartDesign::Pocket", "Pocket005")
body.addObject(pocket6)
pocket6.Profile = sketch7
pocket6.setExpression("Length", "Params.pocket6_length")
pocket6.Reversed = True

sketch8 = doc.addObject("Sketcher::SketchObject", "Sketch007")
body.addObject(sketch8)
sketch8.AttachmentSupport = (doc.XZ_Plane, [""])
sketch8.MapMode = "FlatFace"
sketch8.AttachmentOffset = App.Placement(Vector(0, 0, -26.5), App.Rotation())
sketch8.addGeometry([
    Part.LineSegment(Vector(23, -77, 0), Vector(-1, -77, 0)),
    Part.LineSegment(Vector(-1, -77, 0), Vector(-1, 11, 0)),
    Part.LineSegment(Vector(-1, 11, 0), Vector(6, 11, 0)),
    Part.LineSegment(Vector(6, 11, 0), Vector(6, 80, 0)),
    Part.LineSegment(Vector(6, 80, 0), Vector(16, 80, 0)),
    Part.LineSegment(Vector(16, 80, 0), Vector(16, 11, 0)),
    Part.LineSegment(Vector(16, 11, 0), Vector(23, 11, 0)),
    Part.LineSegment(Vector(23, 11, 0), Vector(23, -77, 0)),
], False)
sketch8.addConstraint([
    Sketcher.Constraint("Coincident", 0, 2, 1, 1),
    Sketcher.Constraint("Coincident", 1, 2, 2, 1),
    Sketcher.Constraint("Coincident", 2, 2, 3, 1),
    Sketcher.Constraint("Coincident", 3, 2, 4, 1),
    Sketcher.Constraint("Coincident", 4, 2, 5, 1),
    Sketcher.Constraint("Coincident", 5, 2, 6, 1),
    Sketcher.Constraint("Coincident", 6, 2, 7, 1),
    Sketcher.Constraint("Coincident", 7, 2, 0, 1),
    Sketcher.Constraint("Horizontal", 0),
    Sketcher.Constraint("Vertical", 1),
    Sketcher.Constraint("Horizontal", 2),
    Sketcher.Constraint("Vertical", 3),
    Sketcher.Constraint("Horizontal", 4),
    Sketcher.Constraint("Vertical", 5),
    Sketcher.Constraint("Horizontal", 6),
    Sketcher.Constraint("Vertical", 7),
    Sketcher.Constraint("Horizontal", 2, 2, 5, 2),
    Sketcher.Constraint("Equal", 2, 6),
    Sketcher.Constraint("DistanceX", 0, 2, 0, 1, Q("24 mm")),
    Sketcher.Constraint("DistanceX", 4, 1, 4, 2, Q("9 mm")),
    Sketcher.Constraint("DistanceY", 1, 1, 1, 2, Q("88 mm")),
    Sketcher.Constraint("DistanceY", 3, 1, 3, 2, Q("69 mm")),
    Sketcher.Constraint("DistanceX", -1, 1, 2, 2, Q("6.5 mm")),
    Sketcher.Constraint("DistanceY", 0, 2, -1, 1, Q("76.75 mm")),
])
sketch8.setExpression("Constraints[18]", "Params.sketch8_width")
sketch8.setExpression("Constraints[19]", "Params.sketch8_width2")
sketch8.setExpression("Constraints[20]", "Params.sketch8_height")
sketch8.setExpression("Constraints[21]", "Params.sketch8_height2")
pocket7 = doc.addObject("PartDesign::Pocket", "Pocket006")
body.addObject(pocket7)
pocket7.Profile = sketch8
pocket7.setExpression("Length", "Params.pocket7_length")
pocket7.Reversed = True

sketch9 = doc.addObject("Sketcher::SketchObject", "Sketch008")
body.addObject(sketch9)
sketch9.AttachmentSupport = (doc.XZ_Plane, [""])
sketch9.MapMode = "FlatFace"
sketch9.AttachmentOffset = App.Placement(Vector(0, 0, -26.5), App.Rotation())
sketch9.addGeometry([
    Part.LineSegment(Vector(-24, -47, 0), Vector(-24, -19, 0)),
    Part.LineSegment(Vector(-24, -19, 0), Vector(30, -19, 0)),
    Part.LineSegment(Vector(30, -19, 0), Vector(30, -47, 0)),
    Part.LineSegment(Vector(30, -47, 0), Vector(-24, -47, 0)),
], False)
sketch9.addConstraint([
    Sketcher.Constraint("Coincident", 0, 2, 1, 1),
    Sketcher.Constraint("Coincident", 1, 2, 2, 1),
    Sketcher.Constraint("Coincident", 2, 2, 3, 1),
    Sketcher.Constraint("Coincident", 3, 2, 0, 1),
    Sketcher.Constraint("Vertical", 0),
    Sketcher.Constraint("Horizontal", 1),
    Sketcher.Constraint("Vertical", 2),
    Sketcher.Constraint("Horizontal", 3),
    Sketcher.Constraint("DistanceY", 0, 1, 0, 2, Q("28 mm")),
    Sketcher.Constraint("DistanceX", 1, 1, 1, 2, Q("54 mm")),
    Sketcher.Constraint("DistanceY", 0, 2, -1, 1, Q("19 mm")),
    Sketcher.Constraint("DistanceX", 0, 2, -1, 1, Q("23.5 mm")),
])
sketch9.setExpression("Constraints[8]", "Params.sketch9_height")
sketch9.setExpression("Constraints[9]", "Params.sketch9_width")
pocket8 = doc.addObject("PartDesign::Pocket", "Pocket007")
body.addObject(pocket8)
pocket8.Profile = sketch9
pocket8.setExpression("Length", "Params.pocket8_length")
pocket8.Reversed = True

sketch10 = doc.addObject("Sketcher::SketchObject", "Sketch009")
body.addObject(sketch10)
sketch10.AttachmentSupport = (doc.XZ_Plane, [""])
sketch10.MapMode = "FlatFace"
sketch10.AttachmentOffset = App.Placement(Vector(0, 0, -26.5), App.Rotation())
sketch10.addGeometry([
    Part.LineSegment(Vector(36, -82, 0), Vector(36, 96, 0)),
    Part.LineSegment(Vector(36, 96, 0), Vector(43, 96, 0)),
    Part.LineSegment(Vector(43, 96, 0), Vector(43, -82, 0)),
    Part.LineSegment(Vector(43, -82, 0), Vector(36, -82, 0)),
    Part.LineSegment(Vector(34, -82, 0), Vector(27, -82, 0)),
    Part.LineSegment(Vector(27, -82, 0), Vector(27, 9, 0)),
    Part.LineSegment(Vector(27, 9, 0), Vector(34, 9, 0)),
    Part.LineSegment(Vector(34, 9, 0), Vector(34, -82, 0)),
], False)
sketch10.addConstraint([
    Sketcher.Constraint("Coincident", 0, 2, 1, 1),
    Sketcher.Constraint("Coincident", 1, 2, 2, 1),
    Sketcher.Constraint("Coincident", 2, 2, 3, 1),
    Sketcher.Constraint("Coincident", 3, 2, 0, 1),
    Sketcher.Constraint("Coincident", 4, 2, 5, 1),
    Sketcher.Constraint("Coincident", 5, 2, 6, 1),
    Sketcher.Constraint("Coincident", 6, 2, 7, 1),
    Sketcher.Constraint("Coincident", 7, 2, 4, 1),
    Sketcher.Constraint("Vertical", 0),
    Sketcher.Constraint("Horizontal", 1),
    Sketcher.Constraint("Vertical", 2),
    Sketcher.Constraint("Horizontal", 3),
    Sketcher.Constraint("Horizontal", 4),
    Sketcher.Constraint("Vertical", 5),
    Sketcher.Constraint("Horizontal", 6),
    Sketcher.Constraint("Vertical", 7),
    Sketcher.Constraint("Horizontal", 3, 2, 4, 2),
    Sketcher.Constraint("Equal", 3, 4),
    Sketcher.Constraint("DistanceX", 1, 1, 1, 2, Q("7 mm")),
    Sketcher.Constraint("DistanceY", 0, 1, 0, 2, Q("177.5 mm")),
    Sketcher.Constraint("DistanceX", -1, 1, 0, 2, Q("36 mm")),
    Sketcher.Constraint("DistanceY", 2, 2, -1, 1, Q("82 mm")),
    Sketcher.Constraint("DistanceX", -1, 1, 4, 2, Q("27 mm")),
    Sketcher.Constraint("DistanceY", 5, 1, 5, 2, Q("90.75 mm")),
])
sketch10.setExpression("Constraints[18]", "Params.sketch10_width")
sketch10.setExpression("Constraints[19]", "Params.sketch10_height")
sketch10.setExpression("Constraints[23]", "Params.sketch10_height2")
pocket9 = doc.addObject("PartDesign::Pocket", "Pocket008")
body.addObject(pocket9)
pocket9.Profile = sketch10
pocket9.setExpression("Length", "Params.pocket9_length")
pocket9.Reversed = True

sketch11 = doc.addObject("Sketcher::SketchObject", "Sketch010")
body.addObject(sketch11)
sketch11.AttachmentSupport = (doc.XZ_Plane, [""])
sketch11.MapMode = "FlatFace"
sketch11.AttachmentOffset = App.Placement(Vector(0, 0, -26.5), App.Rotation())
sketch11.addGeometry([
    Part.LineSegment(Vector(23, 60, 0), Vector(36, 60, 0)),
    Part.LineSegment(Vector(36, 60, 0), Vector(36, 28, 0)),
    Part.LineSegment(Vector(36, 28, 0), Vector(23, 28, 0)),
    Part.LineSegment(Vector(23, 28, 0), Vector(23, 60, 0)),
    Part.LineSegment(Vector(30, 66, 0), Vector(30, 80, 0)),
    Part.LineSegment(Vector(30, 80, 0), Vector(50, 80, 0)),
    Part.LineSegment(Vector(50, 80, 0), Vector(50, 66, 0)),
    Part.LineSegment(Vector(50, 66, 0), Vector(30, 66, 0)),
    Part.LineSegment(Vector(24, 25, 0), Vector(36, 25, 0)),
    Part.LineSegment(Vector(36, 25, 0), Vector(36, 9, 0)),
    Part.LineSegment(Vector(36, 9, 0), Vector(24, 9, 0)),
    Part.LineSegment(Vector(24, 9, 0), Vector(24, 25, 0)),
    Part.LineSegment(Vector(46, -38, 0), Vector(34, -38, 0)),
    Part.LineSegment(Vector(34, -38, 0), Vector(34, -20, 0)),
    Part.LineSegment(Vector(34, -20, 0), Vector(46, -20, 0)),
    Part.LineSegment(Vector(46, -20, 0), Vector(46, -38, 0)),
], False)
sketch11.addConstraint([
    Sketcher.Constraint("Coincident", 0, 2, 1, 1),
    Sketcher.Constraint("Coincident", 1, 2, 2, 1),
    Sketcher.Constraint("Coincident", 2, 2, 3, 1),
    Sketcher.Constraint("Coincident", 3, 2, 0, 1),
    Sketcher.Constraint("Coincident", 4, 2, 5, 1),
    Sketcher.Constraint("Coincident", 5, 2, 6, 1),
    Sketcher.Constraint("Coincident", 6, 2, 7, 1),
    Sketcher.Constraint("Coincident", 7, 2, 4, 1),
    Sketcher.Constraint("Coincident", 8, 2, 9, 1),
    Sketcher.Constraint("Coincident", 9, 2, 10, 1),
    Sketcher.Constraint("Coincident", 10, 2, 11, 1),
    Sketcher.Constraint("Coincident", 11, 2, 8, 1),
    Sketcher.Constraint("Coincident", 12, 2, 13, 1),
    Sketcher.Constraint("Coincident", 13, 2, 14, 1),
    Sketcher.Constraint("Coincident", 14, 2, 15, 1),
    Sketcher.Constraint("Coincident", 15, 2, 12, 1),
    Sketcher.Constraint("Horizontal", 0),
    Sketcher.Constraint("Vertical", 1),
    Sketcher.Constraint("Horizontal", 2),
    Sketcher.Constraint("Vertical", 3),
    Sketcher.Constraint("Vertical", 4),
    Sketcher.Constraint("Horizontal", 5),
    Sketcher.Constraint("Vertical", 6),
    Sketcher.Constraint("Horizontal", 7),
    Sketcher.Constraint("Horizontal", 8),
    Sketcher.Constraint("Vertical", 9),
    Sketcher.Constraint("Horizontal", 10),
    Sketcher.Constraint("Vertical", 11),
    Sketcher.Constraint("Horizontal", 12),
    Sketcher.Constraint("Vertical", 13),
    Sketcher.Constraint("Horizontal", 14),
    Sketcher.Constraint("Vertical", 15),
    Sketcher.Constraint("Vertical", 1, 2, 8, 2),
    Sketcher.Constraint("Equal", 10, 12),
    Sketcher.Constraint("DistanceX", 0, 1, 0, 2, Q("13 mm")),
    Sketcher.Constraint("DistanceX", 5, 1, 5, 2, Q("20 mm")),
    Sketcher.Constraint("DistanceX", 8, 1, 8, 2, Q("12 mm")),
    Sketcher.Constraint("DistanceY", 1, 2, 1, 1, Q("32 mm")),
    Sketcher.Constraint("DistanceY", 4, 1, 4, 2, Q("14 mm")),
    Sketcher.Constraint("DistanceY", 9, 2, 9, 1, Q("16 mm")),
    Sketcher.Constraint("DistanceY", 13, 1, 13, 2, Q("18 mm")),
    Sketcher.Constraint("DistanceX", 0, 2, 5, 2, Q("14 mm")),
    Sketcher.Constraint("DistanceY", 8, 2, 1, 2, Q("3 mm")),
    Sketcher.Constraint("DistanceY", 13, 2, 8, 2, Q("45 mm")),
    Sketcher.Constraint("DistanceX", 12, 2, 9, 2, Q("2.5 mm")),
    Sketcher.Constraint("DistanceX", -1, 1, 0, 2, Q("36 mm")),
    Sketcher.Constraint("DistanceY", -1, 1, 4, 2, Q("79.5 mm")),
    Sketcher.Constraint("DistanceY", -1, 1, 0, 2, Q("59.75 mm")),
])
sketch11.setExpression("Constraints[34]", "Params.sketch11_width")
sketch11.setExpression("Constraints[35]", "Params.sketch11_width2")
sketch11.setExpression("Constraints[36]", "Params.sketch11_width3")
sketch11.setExpression("Constraints[37]", "Params.sketch11_height")
sketch11.setExpression("Constraints[38]", "Params.sketch11_height2")
pocket10 = doc.addObject("PartDesign::Pocket", "Pocket009")
body.addObject(pocket10)
pocket10.Profile = sketch11
pocket10.setExpression("Length", "Params.pocket10_length")
pocket10.Reversed = True

sketch12 = doc.addObject("Sketcher::SketchObject", "Sketch011")
body.addObject(sketch12)
sketch12.AttachmentSupport = (doc.XZ_Plane, [""])
sketch12.MapMode = "FlatFace"
sketch12.AttachmentOffset = App.Placement(Vector(0, 0, -26.5), App.Rotation())
sketch12.addGeometry([
    Part.LineSegment(Vector(33, 75, 0), Vector(33, 60, 0)),
    Part.LineSegment(Vector(33, 60, 0), Vector(26, 60, 0)),
    Part.LineSegment(Vector(26, 60, 0), Vector(26, 75, 0)),
    Part.LineSegment(Vector(26, 75, 0), Vector(33, 75, 0)),
], False)
sketch12.addConstraint([
    Sketcher.Constraint("Coincident", 0, 2, 1, 1),
    Sketcher.Constraint("Coincident", 1, 2, 2, 1),
    Sketcher.Constraint("Coincident", 2, 2, 3, 1),
    Sketcher.Constraint("Coincident", 3, 2, 0, 1),
    Sketcher.Constraint("Vertical", 0),
    Sketcher.Constraint("Horizontal", 1),
    Sketcher.Constraint("Vertical", 2),
    Sketcher.Constraint("Horizontal", 3),
    Sketcher.Constraint("DistanceX", 1, 2, 1, 1, Q("7 mm")),
    Sketcher.Constraint("DistanceY", 0, 2, 0, 1, Q("15 mm")),
    Sketcher.Constraint("DistanceX", -1, 1, 0, 2, Q("33 mm")),
    Sketcher.Constraint("DistanceY", -1, 1, 0, 2, Q("59.75 mm")),
])
sketch12.setExpression("Constraints[8]", "Params.sketch12_width")
sketch12.setExpression("Constraints[9]", "Params.sketch12_height")
pocket11 = doc.addObject("PartDesign::Pocket", "Pocket010")
body.addObject(pocket11)
pocket11.Profile = sketch12
pocket11.setExpression("Length", "Params.pocket11_length")
pocket11.Reversed = True

doc.recompute()
